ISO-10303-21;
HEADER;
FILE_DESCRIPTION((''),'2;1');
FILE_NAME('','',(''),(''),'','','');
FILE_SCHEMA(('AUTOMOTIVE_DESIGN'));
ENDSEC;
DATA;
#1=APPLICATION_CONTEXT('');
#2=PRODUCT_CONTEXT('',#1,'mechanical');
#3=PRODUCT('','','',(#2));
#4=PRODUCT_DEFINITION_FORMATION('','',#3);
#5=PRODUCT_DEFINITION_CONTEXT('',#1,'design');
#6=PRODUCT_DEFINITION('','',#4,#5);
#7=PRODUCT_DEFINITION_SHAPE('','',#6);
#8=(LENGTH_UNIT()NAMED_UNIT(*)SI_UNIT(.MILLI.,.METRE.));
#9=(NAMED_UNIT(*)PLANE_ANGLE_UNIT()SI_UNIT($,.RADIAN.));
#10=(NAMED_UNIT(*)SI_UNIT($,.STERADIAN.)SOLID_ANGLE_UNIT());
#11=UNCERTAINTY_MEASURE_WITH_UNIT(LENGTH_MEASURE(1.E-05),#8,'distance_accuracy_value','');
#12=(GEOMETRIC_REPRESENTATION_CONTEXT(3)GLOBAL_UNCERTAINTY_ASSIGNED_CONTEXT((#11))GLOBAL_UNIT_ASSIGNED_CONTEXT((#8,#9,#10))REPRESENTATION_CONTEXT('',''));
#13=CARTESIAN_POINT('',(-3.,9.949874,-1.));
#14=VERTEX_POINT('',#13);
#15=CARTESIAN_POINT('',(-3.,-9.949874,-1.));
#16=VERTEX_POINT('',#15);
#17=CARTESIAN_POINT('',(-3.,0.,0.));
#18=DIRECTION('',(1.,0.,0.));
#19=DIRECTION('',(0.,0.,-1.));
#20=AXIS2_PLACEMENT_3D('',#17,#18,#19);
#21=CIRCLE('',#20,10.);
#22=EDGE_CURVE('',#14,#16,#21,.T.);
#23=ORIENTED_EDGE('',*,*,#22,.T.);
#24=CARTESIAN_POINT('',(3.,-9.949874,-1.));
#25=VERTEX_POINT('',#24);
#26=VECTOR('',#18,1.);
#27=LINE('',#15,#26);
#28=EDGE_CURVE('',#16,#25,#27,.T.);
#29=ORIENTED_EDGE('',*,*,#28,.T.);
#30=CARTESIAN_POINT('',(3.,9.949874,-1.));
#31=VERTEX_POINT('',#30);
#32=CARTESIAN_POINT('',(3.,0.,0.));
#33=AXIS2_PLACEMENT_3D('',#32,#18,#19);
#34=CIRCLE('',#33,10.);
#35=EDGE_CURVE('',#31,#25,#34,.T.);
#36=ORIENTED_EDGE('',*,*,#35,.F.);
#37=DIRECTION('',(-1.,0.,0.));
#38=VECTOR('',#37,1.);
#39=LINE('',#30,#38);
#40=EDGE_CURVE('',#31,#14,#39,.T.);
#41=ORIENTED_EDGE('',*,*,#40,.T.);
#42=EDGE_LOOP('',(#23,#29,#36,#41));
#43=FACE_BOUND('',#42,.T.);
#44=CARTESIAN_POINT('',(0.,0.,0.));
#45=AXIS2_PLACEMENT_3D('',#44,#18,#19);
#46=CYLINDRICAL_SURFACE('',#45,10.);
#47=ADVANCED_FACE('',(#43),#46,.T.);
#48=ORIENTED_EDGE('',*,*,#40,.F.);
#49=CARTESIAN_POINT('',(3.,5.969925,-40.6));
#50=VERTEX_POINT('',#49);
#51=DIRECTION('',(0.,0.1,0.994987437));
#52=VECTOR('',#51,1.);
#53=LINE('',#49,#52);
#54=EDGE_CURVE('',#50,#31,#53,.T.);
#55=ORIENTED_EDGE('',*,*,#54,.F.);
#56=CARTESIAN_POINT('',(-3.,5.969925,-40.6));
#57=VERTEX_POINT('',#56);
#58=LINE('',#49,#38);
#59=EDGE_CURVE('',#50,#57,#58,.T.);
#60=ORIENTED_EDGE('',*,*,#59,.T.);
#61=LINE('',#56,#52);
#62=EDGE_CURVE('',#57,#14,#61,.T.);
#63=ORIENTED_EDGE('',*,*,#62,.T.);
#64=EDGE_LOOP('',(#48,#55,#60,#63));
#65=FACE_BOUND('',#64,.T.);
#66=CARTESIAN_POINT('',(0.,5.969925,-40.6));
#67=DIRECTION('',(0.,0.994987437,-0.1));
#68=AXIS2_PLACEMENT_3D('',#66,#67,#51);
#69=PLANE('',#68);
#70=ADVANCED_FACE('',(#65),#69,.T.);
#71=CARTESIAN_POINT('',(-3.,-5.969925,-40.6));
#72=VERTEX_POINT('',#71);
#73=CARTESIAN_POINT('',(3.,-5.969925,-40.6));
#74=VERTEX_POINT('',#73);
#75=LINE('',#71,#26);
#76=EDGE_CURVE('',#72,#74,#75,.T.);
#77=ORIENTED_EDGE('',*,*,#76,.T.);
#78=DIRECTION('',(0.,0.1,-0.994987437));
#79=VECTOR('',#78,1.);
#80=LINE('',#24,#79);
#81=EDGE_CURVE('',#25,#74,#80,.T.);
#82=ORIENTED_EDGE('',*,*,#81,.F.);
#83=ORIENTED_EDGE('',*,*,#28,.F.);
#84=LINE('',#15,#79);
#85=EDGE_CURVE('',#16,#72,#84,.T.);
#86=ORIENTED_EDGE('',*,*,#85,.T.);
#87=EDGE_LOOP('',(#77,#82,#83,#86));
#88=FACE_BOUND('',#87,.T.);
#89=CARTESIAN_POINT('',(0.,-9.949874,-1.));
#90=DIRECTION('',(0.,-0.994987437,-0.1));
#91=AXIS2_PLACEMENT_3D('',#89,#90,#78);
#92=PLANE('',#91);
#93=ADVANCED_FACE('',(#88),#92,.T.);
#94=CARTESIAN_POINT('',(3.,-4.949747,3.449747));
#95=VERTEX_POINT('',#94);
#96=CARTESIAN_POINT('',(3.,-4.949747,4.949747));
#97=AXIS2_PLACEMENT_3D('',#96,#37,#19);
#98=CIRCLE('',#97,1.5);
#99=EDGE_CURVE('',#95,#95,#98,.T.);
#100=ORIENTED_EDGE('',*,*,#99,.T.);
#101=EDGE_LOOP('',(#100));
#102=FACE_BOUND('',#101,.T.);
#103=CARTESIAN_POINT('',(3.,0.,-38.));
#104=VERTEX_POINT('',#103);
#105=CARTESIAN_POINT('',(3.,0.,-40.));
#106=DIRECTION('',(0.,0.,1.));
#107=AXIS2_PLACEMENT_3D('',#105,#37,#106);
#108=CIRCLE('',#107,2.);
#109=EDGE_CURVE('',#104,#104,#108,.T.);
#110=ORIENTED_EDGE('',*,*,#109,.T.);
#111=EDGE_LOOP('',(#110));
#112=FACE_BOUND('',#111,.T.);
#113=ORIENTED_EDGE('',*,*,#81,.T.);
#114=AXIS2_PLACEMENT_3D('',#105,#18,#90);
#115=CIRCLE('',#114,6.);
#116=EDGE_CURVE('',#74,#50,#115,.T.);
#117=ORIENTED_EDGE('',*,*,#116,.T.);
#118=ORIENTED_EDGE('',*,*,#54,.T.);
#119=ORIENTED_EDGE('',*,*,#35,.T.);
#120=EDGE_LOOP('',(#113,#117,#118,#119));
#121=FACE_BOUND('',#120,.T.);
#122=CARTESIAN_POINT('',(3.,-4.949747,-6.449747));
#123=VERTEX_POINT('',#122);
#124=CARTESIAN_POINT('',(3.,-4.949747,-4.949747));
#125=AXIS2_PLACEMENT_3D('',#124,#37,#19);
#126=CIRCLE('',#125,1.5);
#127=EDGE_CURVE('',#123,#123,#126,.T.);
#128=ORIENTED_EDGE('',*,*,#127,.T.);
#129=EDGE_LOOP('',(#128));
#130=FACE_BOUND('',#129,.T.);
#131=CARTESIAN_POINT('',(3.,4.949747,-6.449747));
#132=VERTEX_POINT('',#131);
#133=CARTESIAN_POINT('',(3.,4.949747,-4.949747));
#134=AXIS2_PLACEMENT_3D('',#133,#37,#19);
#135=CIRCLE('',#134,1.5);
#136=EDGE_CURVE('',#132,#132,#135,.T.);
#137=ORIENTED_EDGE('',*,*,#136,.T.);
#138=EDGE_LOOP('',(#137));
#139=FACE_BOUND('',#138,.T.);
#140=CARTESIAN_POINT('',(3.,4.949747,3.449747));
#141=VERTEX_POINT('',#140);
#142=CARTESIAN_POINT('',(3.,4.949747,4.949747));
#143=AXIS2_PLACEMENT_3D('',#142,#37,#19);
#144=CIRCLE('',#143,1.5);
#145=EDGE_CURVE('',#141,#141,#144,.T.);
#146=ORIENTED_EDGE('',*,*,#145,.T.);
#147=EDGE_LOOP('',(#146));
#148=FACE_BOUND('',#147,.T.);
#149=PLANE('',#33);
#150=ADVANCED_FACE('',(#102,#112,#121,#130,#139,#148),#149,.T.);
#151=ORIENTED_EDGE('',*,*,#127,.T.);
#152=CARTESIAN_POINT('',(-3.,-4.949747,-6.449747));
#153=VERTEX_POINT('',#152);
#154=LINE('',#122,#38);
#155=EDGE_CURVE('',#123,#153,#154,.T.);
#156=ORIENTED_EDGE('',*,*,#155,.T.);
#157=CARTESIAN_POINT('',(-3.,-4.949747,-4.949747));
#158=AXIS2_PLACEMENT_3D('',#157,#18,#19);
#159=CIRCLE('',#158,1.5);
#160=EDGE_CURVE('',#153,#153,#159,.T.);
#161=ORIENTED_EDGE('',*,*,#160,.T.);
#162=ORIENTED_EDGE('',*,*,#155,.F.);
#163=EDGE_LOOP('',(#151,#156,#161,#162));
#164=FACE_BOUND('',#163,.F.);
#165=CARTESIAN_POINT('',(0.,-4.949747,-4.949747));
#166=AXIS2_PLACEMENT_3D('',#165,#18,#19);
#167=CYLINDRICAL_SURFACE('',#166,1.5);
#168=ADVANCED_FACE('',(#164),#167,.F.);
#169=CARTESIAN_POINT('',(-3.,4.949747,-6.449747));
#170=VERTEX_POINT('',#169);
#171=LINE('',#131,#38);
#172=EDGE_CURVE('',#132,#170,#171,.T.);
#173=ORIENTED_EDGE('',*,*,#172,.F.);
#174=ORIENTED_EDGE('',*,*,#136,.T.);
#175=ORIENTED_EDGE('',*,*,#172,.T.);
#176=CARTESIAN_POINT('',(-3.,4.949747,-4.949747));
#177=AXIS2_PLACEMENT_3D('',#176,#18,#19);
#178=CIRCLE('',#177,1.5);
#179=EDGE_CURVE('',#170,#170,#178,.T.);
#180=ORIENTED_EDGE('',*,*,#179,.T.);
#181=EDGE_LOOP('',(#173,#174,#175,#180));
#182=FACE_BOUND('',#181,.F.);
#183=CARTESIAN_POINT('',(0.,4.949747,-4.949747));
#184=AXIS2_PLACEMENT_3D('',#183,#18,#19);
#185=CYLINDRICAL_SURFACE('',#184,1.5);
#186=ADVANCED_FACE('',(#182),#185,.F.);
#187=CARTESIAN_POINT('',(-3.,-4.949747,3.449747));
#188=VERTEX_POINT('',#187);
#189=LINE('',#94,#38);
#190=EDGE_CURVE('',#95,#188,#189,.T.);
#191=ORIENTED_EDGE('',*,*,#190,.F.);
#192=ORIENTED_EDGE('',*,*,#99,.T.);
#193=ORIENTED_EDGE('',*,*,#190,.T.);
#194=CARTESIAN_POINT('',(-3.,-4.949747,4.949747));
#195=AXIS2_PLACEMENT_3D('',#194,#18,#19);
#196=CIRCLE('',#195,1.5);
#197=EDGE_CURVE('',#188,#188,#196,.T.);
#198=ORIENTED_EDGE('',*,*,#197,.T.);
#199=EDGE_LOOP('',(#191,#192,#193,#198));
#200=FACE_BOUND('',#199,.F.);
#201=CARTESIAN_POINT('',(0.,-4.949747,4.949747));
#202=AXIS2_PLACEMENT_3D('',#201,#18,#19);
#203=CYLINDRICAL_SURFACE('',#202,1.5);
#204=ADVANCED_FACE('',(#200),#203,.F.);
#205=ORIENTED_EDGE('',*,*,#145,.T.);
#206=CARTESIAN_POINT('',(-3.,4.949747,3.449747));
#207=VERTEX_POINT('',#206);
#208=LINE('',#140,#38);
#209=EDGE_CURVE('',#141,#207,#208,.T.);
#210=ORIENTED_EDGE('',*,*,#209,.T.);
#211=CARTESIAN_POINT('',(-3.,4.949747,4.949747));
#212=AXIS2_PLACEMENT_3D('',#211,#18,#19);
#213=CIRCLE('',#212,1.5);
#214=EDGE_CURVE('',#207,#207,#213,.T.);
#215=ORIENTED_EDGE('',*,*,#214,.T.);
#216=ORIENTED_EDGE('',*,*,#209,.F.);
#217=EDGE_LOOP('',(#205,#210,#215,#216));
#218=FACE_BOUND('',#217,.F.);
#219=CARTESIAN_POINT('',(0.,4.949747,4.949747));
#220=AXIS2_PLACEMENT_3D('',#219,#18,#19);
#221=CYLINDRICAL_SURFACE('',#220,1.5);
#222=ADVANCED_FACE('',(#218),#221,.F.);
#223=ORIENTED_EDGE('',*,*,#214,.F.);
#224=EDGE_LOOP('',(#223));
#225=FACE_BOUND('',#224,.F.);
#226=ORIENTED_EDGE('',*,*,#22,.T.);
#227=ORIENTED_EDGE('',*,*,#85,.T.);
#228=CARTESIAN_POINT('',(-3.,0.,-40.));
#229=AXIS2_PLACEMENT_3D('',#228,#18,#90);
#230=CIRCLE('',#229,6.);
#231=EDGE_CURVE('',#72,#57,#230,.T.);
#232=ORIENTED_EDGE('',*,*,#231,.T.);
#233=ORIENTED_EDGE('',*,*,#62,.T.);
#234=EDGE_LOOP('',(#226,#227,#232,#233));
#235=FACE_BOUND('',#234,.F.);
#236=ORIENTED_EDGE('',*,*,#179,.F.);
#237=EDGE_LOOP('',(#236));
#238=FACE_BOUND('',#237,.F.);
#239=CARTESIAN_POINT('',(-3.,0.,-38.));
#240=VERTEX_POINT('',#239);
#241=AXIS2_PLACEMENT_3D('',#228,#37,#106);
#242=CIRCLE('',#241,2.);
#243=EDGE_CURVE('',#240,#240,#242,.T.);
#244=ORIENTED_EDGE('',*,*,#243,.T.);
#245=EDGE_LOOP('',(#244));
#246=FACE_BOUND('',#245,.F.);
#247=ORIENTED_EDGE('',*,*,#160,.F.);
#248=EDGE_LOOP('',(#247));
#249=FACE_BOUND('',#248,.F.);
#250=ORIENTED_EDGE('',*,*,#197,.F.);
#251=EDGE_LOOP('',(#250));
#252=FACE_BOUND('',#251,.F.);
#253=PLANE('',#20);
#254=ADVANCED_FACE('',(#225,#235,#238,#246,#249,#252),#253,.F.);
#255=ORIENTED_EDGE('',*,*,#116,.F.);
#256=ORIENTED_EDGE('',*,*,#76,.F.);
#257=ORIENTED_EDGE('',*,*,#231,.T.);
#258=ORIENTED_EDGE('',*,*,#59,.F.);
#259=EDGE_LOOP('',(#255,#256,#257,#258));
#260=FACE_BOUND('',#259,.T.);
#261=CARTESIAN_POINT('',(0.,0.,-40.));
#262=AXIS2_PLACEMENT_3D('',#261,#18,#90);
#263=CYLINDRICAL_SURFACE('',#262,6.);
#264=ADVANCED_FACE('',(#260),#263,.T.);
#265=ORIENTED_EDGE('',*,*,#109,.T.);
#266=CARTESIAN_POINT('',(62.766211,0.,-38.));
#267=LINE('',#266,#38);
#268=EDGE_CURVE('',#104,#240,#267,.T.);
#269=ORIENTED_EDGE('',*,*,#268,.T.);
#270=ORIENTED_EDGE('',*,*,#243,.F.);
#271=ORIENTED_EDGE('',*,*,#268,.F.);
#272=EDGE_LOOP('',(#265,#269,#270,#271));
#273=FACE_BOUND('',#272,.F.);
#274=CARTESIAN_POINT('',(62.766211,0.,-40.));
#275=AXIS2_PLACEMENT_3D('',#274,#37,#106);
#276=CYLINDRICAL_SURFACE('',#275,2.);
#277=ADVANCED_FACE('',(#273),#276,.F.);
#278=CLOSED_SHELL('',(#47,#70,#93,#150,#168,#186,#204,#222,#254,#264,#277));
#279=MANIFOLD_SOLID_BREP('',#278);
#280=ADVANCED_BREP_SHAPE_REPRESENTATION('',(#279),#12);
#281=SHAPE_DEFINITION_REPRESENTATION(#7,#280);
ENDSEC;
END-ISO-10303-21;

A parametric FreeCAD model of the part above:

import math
import FreeCAD as App
import Part
import Sketcher
from FreeCAD import Vector
Q = App.Units.Quantity

doc = App.newDocument("Part")
body = doc.addObject("PartDesign::Body", "Body")

sketch1 = body.newObject("Sketcher::SketchObject", "Sketch")
sketch1.AttachmentSupport = (doc.getObject("YZ_Plane"), [""])
sketch1.MapMode = "FlatFace"
sketch1.addGeometry([
    Part.ArcOfCircle(Part.Circle(Vector(0, 0, 0), Vector(0, 0, 1), 10), math.radians(-6), math.radians(186)),
    Part.LineSegment(Vector(-10, -1, 0), Vector(-6, -41, 0)),
    Part.ArcOfCircle(Part.Circle(Vector(0, -40, 0), Vector(0, 0, 1), 6), math.radians(-174), math.radians(-6)),
    Part.LineSegment(Vector(6, -41, 0), Vector(10, -1, 0)),
], False)
sketch1.addConstraint([
    Sketcher.Constraint("Tangent", 0, 2, 1, 1),
    Sketcher.Constraint("Tangent", 1, 2, 2, 1),
    Sketcher.Constraint("Tangent", 2, 2, 3, 1),
    Sketcher.Constraint("Tangent", 3, 2, 0, 1),
    Sketcher.Constraint("Coincident", 0, 3, -1, 1),
    Sketcher.Constraint("PointOnObject", 2, 3, -2),
    Sketcher.Constraint("Radius", 0, Q("10 mm")),
    Sketcher.Constraint("Radius", 2, Q("6 mm")),
    Sketcher.Constraint("DistanceY", 2, 3, -1, 1, Q("40 mm")),
])
pad1 = body.newObject("PartDesign::Pad", "Pad")
pad1.Profile = sketch1
pad1.Length = 6
pad1.Midplane = True

sketch2 = body.newObject("Sketcher::SketchObject", "Sketch001")
sketch2.AttachmentSupport = (doc.getObject("YZ_Plane"), [""])
sketch2.MapMode = "FlatFace"
sketch2.addGeometry([
    Part.Circle(Vector(4.9, -4.9, 0), Vector(0, 0, 1), 1.5),
    Part.Circle(Vector(-4.9, -4.9, 0), Vector(0, 0, 1), 1.5),
    Part.Circle(Vector(-4.9, 4.9, 0), Vector(0, 0, 1), 1.5),
    Part.Circle(Vector(4.9, 4.9, 0), Vector(0, 0, 1), 1.5),
], False)
sketch2.addConstraint([
    Sketcher.Constraint("Equal", 0, 1),
    Sketcher.Constraint("Equal", 1, 2),
    Sketcher.Constraint("Equal", 2, 3),
    Sketcher.Constraint("Symmetric", 0, 3, 2, 3, -1, 1),
    Sketcher.Constraint("Symmetric", 1, 3, 3, 3, -1, 1),
    Sketcher.Constraint("Symmetric", 0, 3, 1, 3, -2),
    Sketcher.Constraint("Diameter", 0, Q("3 mm")),
    Sketcher.Constraint("DistanceX", -1, 1, 0, 3, Q("4.949747 mm")),
    Sketcher.Constraint("DistanceY", 0, 3, -1, 1, Q("4.949747 mm")),
])
pocket1 = body.newObject("PartDesign::Pocket", "Pocket")
pocket1.Profile = sketch2
pocket1.Type = "ThroughAll"
pocket1.Midplane = True

sketch3 = body.newObject("Sketcher::SketchObject", "Sketch002")
sketch3.AttachmentSupport = (doc.getObject("YZ_Plane"), [""])
sketch3.MapMode = "FlatFace"
sketch3.AttachmentOffset = App.Placement(Vector(0, 0, 3), App.Rotation())
sketch3.addGeometry(Part.Circle(Vector(0, -40, 0), Vector(0, 0, 1), 2), False)
sketch3.addConstraint([
    Sketcher.Constraint("PointOnObject", 0, 3, -2),
    Sketcher.Constraint("Diameter", 0, Q("4 mm")),
    Sketcher.Constraint("DistanceY", 0, 3, -1, 1, Q("40 mm")),
])
doc.recompute()
hole = body.newObject("PartDesign::Hole", "Hole")
hole.Profile = sketch3
hole.ThreadType = "None"
hole.Diameter = 4
hole.DepthType = "ThroughAll"

doc.recompute()
